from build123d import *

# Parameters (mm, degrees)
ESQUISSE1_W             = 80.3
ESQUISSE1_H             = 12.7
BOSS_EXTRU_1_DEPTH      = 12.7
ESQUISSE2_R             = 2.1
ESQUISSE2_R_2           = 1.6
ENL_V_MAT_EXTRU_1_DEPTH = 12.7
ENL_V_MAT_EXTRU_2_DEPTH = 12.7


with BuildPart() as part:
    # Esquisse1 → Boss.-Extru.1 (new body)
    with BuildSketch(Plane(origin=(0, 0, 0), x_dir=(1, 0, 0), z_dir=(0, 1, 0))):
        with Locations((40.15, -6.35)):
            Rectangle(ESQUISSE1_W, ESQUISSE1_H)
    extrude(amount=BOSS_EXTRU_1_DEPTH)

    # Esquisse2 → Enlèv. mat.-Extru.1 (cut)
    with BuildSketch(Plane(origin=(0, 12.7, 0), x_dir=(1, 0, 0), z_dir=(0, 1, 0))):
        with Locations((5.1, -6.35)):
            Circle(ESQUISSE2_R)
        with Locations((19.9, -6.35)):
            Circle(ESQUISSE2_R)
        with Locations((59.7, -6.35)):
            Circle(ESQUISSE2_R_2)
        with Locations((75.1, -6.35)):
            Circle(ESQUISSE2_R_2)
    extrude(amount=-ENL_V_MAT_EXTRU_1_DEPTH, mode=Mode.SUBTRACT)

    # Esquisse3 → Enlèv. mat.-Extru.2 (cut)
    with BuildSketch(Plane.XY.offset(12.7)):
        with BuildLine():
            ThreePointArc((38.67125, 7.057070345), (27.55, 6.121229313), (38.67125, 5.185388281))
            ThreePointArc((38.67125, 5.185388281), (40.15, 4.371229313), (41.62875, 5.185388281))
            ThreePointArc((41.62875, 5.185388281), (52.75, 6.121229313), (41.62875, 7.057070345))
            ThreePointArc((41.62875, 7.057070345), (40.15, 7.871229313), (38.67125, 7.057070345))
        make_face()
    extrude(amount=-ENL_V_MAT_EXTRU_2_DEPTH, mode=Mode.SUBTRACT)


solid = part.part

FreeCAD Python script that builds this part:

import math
import FreeCAD as App
import Part
import Sketcher
from FreeCAD import Vector

doc = App.newDocument("Part")
params = doc.addObject("Spreadsheet::Sheet", "Params")
for row, (alias, value) in enumerate([
    ("sketch1_width", "80.3 mm"),
    ("sketch1_height", "12.7 mm"),
    ("pad1_length", "12.7 mm"),
    ("sketch2_diameter", "4.2 mm"),
    ("sketch2_diameter2", "3.2 mm"),
    ("pocket1_length", "12.7 mm"),
    ("sketch3_radius", "5.6 mm"),
    ("sketch3_radius2", "1.75 mm"),
    ("pocket2_length", "12.7 mm"),
], start=1):
    params.set(f"A{row}", alias)
    params.set(f"B{row}", "=" + value)
    params.setAlias(f"B{row}", alias)

body = doc.addObject("PartDesign::Body", "Body")

sketch1 = body.newObject("Sketcher::SketchObject", "Sketch")
sketch1.AttachmentSupport = (doc.getObject("XZ_Plane"), [""])
sketch1.MapMode = "FlatFace"
sketch1.addGeometry(Part.LineSegment(Vector(0, 0, 0), Vector(0, 12.7, 0)), False)
sketch1.addGeometry(Part.LineSegment(Vector(0, 12.7, 0), Vector(80.3, 12.7, 0)), False)
sketch1.addGeometry(Part.LineSegment(Vector(80.3, 12.7, 0), Vector(80.3, 0, 0)), False)
sketch1.addGeometry(Part.LineSegment(Vector(80.3, 0, 0), Vector(0, 0, 0)), False)
sketch1.addConstraint(Sketcher.Constraint("Coincident", 0, 2, 1, 1))
sketch1.addConstraint(Sketcher.Constraint("Coincident", 1, 2, 2, 1))
sketch1.addConstraint(Sketcher.Constraint("Coincident", 2, 2, 3, 1))
sketch1.addConstraint(Sketcher.Constraint("Coincident", 3, 2, 0, 1))
sketch1.addConstraint(Sketcher.Constraint("Vertical", 0))
sketch1.addConstraint(Sketcher.Constraint("Horizontal", 1))
sketch1.addConstraint(Sketcher.Constraint("Vertical", 2))
sketch1.addConstraint(Sketcher.Constraint("Horizontal", 3))
sketch1.addConstraint(Sketcher.Constraint("Coincident", 3, 2, -1, 1))
sketch1.addConstraint(Sketcher.Constraint("DistanceX", 1, 1, 1, 2, 80.3))
sketch1.addConstraint(Sketcher.Constraint("DistanceY", 0, 1, 0, 2, 12.7))
sketch1.setExpression("Constraints[9]", "Params.sketch1_width")
sketch1.setExpression("Constraints[10]", "Params.sketch1_height")
pad1 = body.newObject("PartDesign::Pad", "Pad")
pad1.Profile = sketch1
pad1.setExpression("Length", "Params.pad1_length")
pad1.Reversed = True

sketch2 = body.newObject("Sketcher::SketchObject", "Sketch001")
sketch2.AttachmentSupport = (doc.getObject("XZ_Plane"), [""])
sketch2.MapMode = "FlatFace"
sketch2.AttachmentOffset = App.Placement(Vector(0, 0, -12.7), App.Rotation())
sketch2.addGeometry(Part.Circle(Vector(5.1, 6.35, 0), Vector(0, 0, 1), 2.1), False)
sketch2.addGeometry(Part.Circle(Vector(19.9, 6.35, 0), Vector(0, 0, 1), 2.1), False)
sketch2.addGeometry(Part.Circle(Vector(59.7, 6.35, 0), Vector(0, 0, 1), 1.6), False)
sketch2.addGeometry(Part.Circle(Vector(75.1, 6.35, 0), Vector(0, 0, 1), 1.6), False)
sketch2.addConstraint(Sketcher.Constraint("Equal", 0, 1))
sketch2.addConstraint(Sketcher.Constraint("Equal", 2, 3))
sketch2.addConstraint(Sketcher.Constraint("Horizontal", 0, 3, 1, 3))
sketch2.addConstraint(Sketcher.Constraint("Horizontal", 1, 3, 2, 3))
sketch2.addConstraint(Sketcher.Constraint("Horizontal", 2, 3, 3, 3))
sketch2.addConstraint(Sketcher.Constraint("Diameter", 0, 4.2))
sketch2.addConstraint(Sketcher.Constraint("Diameter", 2, 3.2))
sketch2.addConstraint(Sketcher.Constraint("DistanceX", 0, 3, 3, 3, 70.0))
sketch2.addConstraint(Sketcher.Constraint("DistanceX", -1, 1, 0, 3, 5.1))
sketch2.addConstraint(Sketcher.Constraint("DistanceX", -1, 1, 1, 3, 19.9))
sketch2.addConstraint(Sketcher.Constraint("DistanceX", -1, 1, 2, 3, 59.7))
sketch2.addConstraint(Sketcher.Constraint("DistanceY", -1, 1, 0, 3, 6.35))
sketch2.setExpression("Constraints[5]", "Params.sketch2_diameter")
sketch2.setExpression("Constraints[6]", "Params.sketch2_diameter2")
pocket1 = body.newObject("PartDesign::Pocket", "Pocket")
pocket1.Profile = sketch2
pocket1.setExpression("Length", "Params.pocket1_length")
pocket1.Reversed = True

sketch3 = body.newObject("Sketcher::SketchObject", "Sketch002")
sketch3.AttachmentSupport = (doc.getObject("XY_Plane"), [""])
sketch3.MapMode = "FlatFace"
sketch3.AttachmentOffset = App.Placement(Vector(0, 0, 12.7), App.Rotation())
sketch3.addGeometry(Part.ArcOfCircle(Part.Circle(Vector(33.15, 6.121229, 0), Vector(0, 0, 1), 5.6), math.radians(9.62009), math.radians(350.37991)), False)
sketch3.addGeometry(Part.ArcOfCircle(Part.Circle(Vector(40.15, 6.121229, 0), Vector(0, 0, 1), 1.75), math.radians(-147.671936), math.radians(-32.328064)), False)
sketch3.addGeometry(Part.ArcOfCircle(Part.Circle(Vector(47.15, 6.121229, 0), Vector(0, 0, 1), 5.6), math.radians(-170.37991), math.radians(170.37991)), False)
sketch3.addGeometry(Part.ArcOfCircle(Part.Circle(Vector(40.15, 6.121229, 0), Vector(0, 0, 1), 1.75), math.radians(32.328064), math.radians(147.671936)), False)
sketch3.addConstraint(Sketcher.Constraint("Coincident", 0, 2, 1, 1))
sketch3.addConstraint(Sketcher.Constraint("Coincident", 1, 2, 2, 1))
sketch3.addConstraint(Sketcher.Constraint("Coincident", 2, 2, 3, 1))
sketch3.addConstraint(Sketcher.Constraint("Coincident", 3, 2, 0, 1))
sketch3.addConstraint(Sketcher.Constraint("Coincident", 3, 3, 1, 3))
sketch3.addConstraint(Sketcher.Constraint("Equal", 0, 2))
sketch3.addConstraint(Sketcher.Constraint("Equal", 1, 3))
sketch3.addConstraint(Sketcher.Constraint("Horizontal", 0, 3, 1, 3))
sketch3.addConstraint(Sketcher.Constraint("Horizontal", 1, 3, 2, 3))
sketch3.addConstraint(Sketcher.Constraint("Horizontal", 0, 2, 1, 2))
sketch3.addConstraint(Sketcher.Constraint("Radius", 0, 5.6))
sketch3.addConstraint(Sketcher.Constraint("Radius", 1, 1.75))
sketch3.addConstraint(Sketcher.Constraint("DistanceX", 0, 3, 1, 3, 7.0))
sketch3.addConstraint(Sketcher.Constraint("DistanceX", -1, 1, 0, 3, 33.15))
sketch3.addConstraint(Sketcher.Constraint("DistanceY", -1, 1, 0, 3, 6.121229))
sketch3.setExpression("Constraints[10]", "Params.sketch3_radius")
sketch3.setExpression("Constraints[11]", "Params.sketch3_radius2")
pocket2 = body.newObject("PartDesign::Pocket", "Pocket001")
pocket2.Profile = sketch3
pocket2.setExpression("Length", "Params.pocket2_length")

doc.recompute()
